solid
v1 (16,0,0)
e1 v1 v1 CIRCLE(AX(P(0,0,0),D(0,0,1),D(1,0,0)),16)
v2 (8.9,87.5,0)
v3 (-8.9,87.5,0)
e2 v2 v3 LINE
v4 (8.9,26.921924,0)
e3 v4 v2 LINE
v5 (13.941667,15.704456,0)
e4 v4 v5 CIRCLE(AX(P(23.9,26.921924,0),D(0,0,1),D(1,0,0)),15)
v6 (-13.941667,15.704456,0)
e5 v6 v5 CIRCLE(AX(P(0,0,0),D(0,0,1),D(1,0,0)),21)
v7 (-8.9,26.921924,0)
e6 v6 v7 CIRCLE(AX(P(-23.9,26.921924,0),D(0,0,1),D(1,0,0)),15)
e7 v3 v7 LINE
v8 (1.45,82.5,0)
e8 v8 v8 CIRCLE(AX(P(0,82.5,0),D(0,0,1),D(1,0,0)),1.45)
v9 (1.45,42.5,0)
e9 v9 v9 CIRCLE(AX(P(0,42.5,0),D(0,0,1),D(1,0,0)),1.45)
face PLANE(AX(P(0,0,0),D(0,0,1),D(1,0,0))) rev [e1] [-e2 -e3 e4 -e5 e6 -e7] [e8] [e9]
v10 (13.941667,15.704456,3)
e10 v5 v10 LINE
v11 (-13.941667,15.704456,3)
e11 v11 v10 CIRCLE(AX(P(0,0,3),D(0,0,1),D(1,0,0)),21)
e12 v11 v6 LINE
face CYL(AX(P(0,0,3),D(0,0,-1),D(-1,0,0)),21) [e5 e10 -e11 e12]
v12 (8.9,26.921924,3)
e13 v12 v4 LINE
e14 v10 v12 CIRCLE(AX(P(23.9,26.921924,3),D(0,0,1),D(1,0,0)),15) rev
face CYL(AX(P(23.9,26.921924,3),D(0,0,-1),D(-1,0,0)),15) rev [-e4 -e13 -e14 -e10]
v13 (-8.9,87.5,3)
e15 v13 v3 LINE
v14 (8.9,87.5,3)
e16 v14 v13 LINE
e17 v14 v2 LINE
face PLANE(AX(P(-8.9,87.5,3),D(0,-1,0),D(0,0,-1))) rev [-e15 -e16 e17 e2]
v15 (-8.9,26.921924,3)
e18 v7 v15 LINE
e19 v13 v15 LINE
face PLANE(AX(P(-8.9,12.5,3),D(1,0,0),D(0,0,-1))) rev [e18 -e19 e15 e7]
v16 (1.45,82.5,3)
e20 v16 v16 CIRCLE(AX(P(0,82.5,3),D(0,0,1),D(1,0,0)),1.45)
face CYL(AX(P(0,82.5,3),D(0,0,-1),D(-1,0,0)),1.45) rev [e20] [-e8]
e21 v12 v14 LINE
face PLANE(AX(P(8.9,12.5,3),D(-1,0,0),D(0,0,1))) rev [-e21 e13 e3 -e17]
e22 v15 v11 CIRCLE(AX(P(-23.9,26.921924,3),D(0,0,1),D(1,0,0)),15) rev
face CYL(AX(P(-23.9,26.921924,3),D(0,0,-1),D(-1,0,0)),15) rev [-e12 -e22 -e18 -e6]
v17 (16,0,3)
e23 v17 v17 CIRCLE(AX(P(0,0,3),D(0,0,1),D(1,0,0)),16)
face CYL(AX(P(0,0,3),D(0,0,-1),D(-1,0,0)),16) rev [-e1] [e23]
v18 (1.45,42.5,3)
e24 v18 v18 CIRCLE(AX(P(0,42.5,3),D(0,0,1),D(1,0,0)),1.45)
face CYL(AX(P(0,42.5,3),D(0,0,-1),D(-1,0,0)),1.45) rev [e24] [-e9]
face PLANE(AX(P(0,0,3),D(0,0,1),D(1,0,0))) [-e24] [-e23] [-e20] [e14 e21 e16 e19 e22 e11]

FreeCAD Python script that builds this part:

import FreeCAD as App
import Part
import Sketcher
from FreeCAD import Vector


def edges_at(feature, points):
    """Names of the edges that pass closest to the given points."""
    edges = feature.Shape.Edges
    near = lambda p: min(range(len(edges)), key=lambda i: edges[i].distToShape(Part.Vertex(*p))[0])
    return sorted({f"Edge{near(p) + 1}" for p in points})


def add_polygon(sketch, points):
    """Adds a closed chain of lines whose ends are joined by coincident constraints."""
    first, n = sketch.GeometryCount, len(points)
    for a, b in zip(points, points[1:] + points[:1]):
        sketch.addGeometry(Part.LineSegment(App.Vector(*a, 0), App.Vector(*b, 0)), False)
    for i in range(n):
        sketch.addConstraint(Sketcher.Constraint("Coincident", first + i, 2, first + (i + 1) % n, 1))

doc = App.newDocument("Part")
body = doc.addObject("PartDesign::Body", "Body")

# Sketch on XY plane
sketch1 = body.newObject("Sketcher::SketchObject", "Sketch")
sketch1.AttachmentSupport = (doc.getObject("XY_Plane"), [""])
sketch1.MapMode = "FlatFace"
sketch1.addGeometry([
    Part.Circle(Vector(0, 0, 0), Vector(0, 0, 1), 21),
    Part.Circle(Vector(0, 0, 0), Vector(0, 0, 1), 16),
], False)
sketch1.addConstraint([
    Sketcher.Constraint("Coincident", 0, 3, -1, 1),
    Sketcher.Constraint("Coincident", 1, 3, -1, 1),
    Sketcher.Constraint("Diameter", 0, 42.0),
    Sketcher.Constraint("Diameter", 1, 32.0),
])
pad1 = body.newObject("PartDesign::Pad", "Pad")
pad1.Profile = sketch1
pad1.Length = 3

# Sketch on XY plane
sketch2 = body.newObject("Sketcher::SketchObject", "Sketch001")
sketch2.AttachmentSupport = (doc.getObject("XY_Plane"), [""])
sketch2.MapMode = "FlatFace"
add_polygon(sketch2, [(-8.9, 87.5), (-8.9, 12.5), (8.9, 12.5), (8.9, 87.5)])  # lines 0-3
sketch2.addGeometry(Part.Circle(Vector(0, 42.5, 0), Vector(0, 0, 1), 1.4), False)  # 4
sketch2.addGeometry(Part.Circle(Vector(0, 82.5, 0), Vector(0, 0, 1), 1.4), False)  # 5
sketch2.addConstraint([
    Sketcher.Constraint("Vertical", 0),
    Sketcher.Constraint("Horizontal", 1),
    Sketcher.Constraint("Vertical", 2),
    Sketcher.Constraint("Horizontal", 3),
    Sketcher.Constraint("Equal", 4, 5),
    Sketcher.Constraint("PointOnObject", 4, 3, -2),
    Sketcher.Constraint("PointOnObject", 5, 3, -2),
    Sketcher.Constraint("Diameter", 4, 2.9),
    Sketcher.Constraint("DistanceY", 0, 2, 0, 1, 75.0),
    Sketcher.Constraint("DistanceX", 1, 1, 1, 2, 17.8),
    Sketcher.Constraint("DistanceY", 4, 3, 5, 3, 40.0),
    Sketcher.Constraint("DistanceY", 0, 2, 4, 3, 30.0),
    Sketcher.Constraint("DistanceY", -1, 1, 4, 3, 42.5),
    Sketcher.Constraint("DistanceX", 0, 2, -1, 1, 8.9),
])
pad2 = body.newObject("PartDesign::Pad", "Pad001")
pad2.Profile = sketch2
pad2.Length = 3

# Sketch on XY plane
sketch3 = body.newObject("Sketcher::SketchObject", "Sketch002")
sketch3.AttachmentSupport = (doc.getObject("XY_Plane"), [""])
sketch3.MapMode = "FlatFace"
sketch3.AttachmentOffset = App.Placement(Vector(0, 0, 3), App.Rotation())
sketch3.addGeometry(Part.Circle(Vector(0, 0, 0), Vector(0, 0, 1), 16), False)
sketch3.addConstraint([
    Sketcher.Constraint("Coincident", 0, 3, -1, 1),
    Sketcher.Constraint("Diameter", 0, 32.0),
])
pocket1 = body.newObject("PartDesign::Pocket", "Pocket")
pocket1.Profile = sketch3
pocket1.Type = "ThroughAll"
doc.recompute()

fillet = body.newObject("PartDesign::Fillet", "Fillet")
fillet.Base = (pocket1, edges_at(pocket1, [(8.9, 19.021, 1.5), (-8.9, 19.021, 1.5)]))
fillet.Radius = 15

doc.recompute()
